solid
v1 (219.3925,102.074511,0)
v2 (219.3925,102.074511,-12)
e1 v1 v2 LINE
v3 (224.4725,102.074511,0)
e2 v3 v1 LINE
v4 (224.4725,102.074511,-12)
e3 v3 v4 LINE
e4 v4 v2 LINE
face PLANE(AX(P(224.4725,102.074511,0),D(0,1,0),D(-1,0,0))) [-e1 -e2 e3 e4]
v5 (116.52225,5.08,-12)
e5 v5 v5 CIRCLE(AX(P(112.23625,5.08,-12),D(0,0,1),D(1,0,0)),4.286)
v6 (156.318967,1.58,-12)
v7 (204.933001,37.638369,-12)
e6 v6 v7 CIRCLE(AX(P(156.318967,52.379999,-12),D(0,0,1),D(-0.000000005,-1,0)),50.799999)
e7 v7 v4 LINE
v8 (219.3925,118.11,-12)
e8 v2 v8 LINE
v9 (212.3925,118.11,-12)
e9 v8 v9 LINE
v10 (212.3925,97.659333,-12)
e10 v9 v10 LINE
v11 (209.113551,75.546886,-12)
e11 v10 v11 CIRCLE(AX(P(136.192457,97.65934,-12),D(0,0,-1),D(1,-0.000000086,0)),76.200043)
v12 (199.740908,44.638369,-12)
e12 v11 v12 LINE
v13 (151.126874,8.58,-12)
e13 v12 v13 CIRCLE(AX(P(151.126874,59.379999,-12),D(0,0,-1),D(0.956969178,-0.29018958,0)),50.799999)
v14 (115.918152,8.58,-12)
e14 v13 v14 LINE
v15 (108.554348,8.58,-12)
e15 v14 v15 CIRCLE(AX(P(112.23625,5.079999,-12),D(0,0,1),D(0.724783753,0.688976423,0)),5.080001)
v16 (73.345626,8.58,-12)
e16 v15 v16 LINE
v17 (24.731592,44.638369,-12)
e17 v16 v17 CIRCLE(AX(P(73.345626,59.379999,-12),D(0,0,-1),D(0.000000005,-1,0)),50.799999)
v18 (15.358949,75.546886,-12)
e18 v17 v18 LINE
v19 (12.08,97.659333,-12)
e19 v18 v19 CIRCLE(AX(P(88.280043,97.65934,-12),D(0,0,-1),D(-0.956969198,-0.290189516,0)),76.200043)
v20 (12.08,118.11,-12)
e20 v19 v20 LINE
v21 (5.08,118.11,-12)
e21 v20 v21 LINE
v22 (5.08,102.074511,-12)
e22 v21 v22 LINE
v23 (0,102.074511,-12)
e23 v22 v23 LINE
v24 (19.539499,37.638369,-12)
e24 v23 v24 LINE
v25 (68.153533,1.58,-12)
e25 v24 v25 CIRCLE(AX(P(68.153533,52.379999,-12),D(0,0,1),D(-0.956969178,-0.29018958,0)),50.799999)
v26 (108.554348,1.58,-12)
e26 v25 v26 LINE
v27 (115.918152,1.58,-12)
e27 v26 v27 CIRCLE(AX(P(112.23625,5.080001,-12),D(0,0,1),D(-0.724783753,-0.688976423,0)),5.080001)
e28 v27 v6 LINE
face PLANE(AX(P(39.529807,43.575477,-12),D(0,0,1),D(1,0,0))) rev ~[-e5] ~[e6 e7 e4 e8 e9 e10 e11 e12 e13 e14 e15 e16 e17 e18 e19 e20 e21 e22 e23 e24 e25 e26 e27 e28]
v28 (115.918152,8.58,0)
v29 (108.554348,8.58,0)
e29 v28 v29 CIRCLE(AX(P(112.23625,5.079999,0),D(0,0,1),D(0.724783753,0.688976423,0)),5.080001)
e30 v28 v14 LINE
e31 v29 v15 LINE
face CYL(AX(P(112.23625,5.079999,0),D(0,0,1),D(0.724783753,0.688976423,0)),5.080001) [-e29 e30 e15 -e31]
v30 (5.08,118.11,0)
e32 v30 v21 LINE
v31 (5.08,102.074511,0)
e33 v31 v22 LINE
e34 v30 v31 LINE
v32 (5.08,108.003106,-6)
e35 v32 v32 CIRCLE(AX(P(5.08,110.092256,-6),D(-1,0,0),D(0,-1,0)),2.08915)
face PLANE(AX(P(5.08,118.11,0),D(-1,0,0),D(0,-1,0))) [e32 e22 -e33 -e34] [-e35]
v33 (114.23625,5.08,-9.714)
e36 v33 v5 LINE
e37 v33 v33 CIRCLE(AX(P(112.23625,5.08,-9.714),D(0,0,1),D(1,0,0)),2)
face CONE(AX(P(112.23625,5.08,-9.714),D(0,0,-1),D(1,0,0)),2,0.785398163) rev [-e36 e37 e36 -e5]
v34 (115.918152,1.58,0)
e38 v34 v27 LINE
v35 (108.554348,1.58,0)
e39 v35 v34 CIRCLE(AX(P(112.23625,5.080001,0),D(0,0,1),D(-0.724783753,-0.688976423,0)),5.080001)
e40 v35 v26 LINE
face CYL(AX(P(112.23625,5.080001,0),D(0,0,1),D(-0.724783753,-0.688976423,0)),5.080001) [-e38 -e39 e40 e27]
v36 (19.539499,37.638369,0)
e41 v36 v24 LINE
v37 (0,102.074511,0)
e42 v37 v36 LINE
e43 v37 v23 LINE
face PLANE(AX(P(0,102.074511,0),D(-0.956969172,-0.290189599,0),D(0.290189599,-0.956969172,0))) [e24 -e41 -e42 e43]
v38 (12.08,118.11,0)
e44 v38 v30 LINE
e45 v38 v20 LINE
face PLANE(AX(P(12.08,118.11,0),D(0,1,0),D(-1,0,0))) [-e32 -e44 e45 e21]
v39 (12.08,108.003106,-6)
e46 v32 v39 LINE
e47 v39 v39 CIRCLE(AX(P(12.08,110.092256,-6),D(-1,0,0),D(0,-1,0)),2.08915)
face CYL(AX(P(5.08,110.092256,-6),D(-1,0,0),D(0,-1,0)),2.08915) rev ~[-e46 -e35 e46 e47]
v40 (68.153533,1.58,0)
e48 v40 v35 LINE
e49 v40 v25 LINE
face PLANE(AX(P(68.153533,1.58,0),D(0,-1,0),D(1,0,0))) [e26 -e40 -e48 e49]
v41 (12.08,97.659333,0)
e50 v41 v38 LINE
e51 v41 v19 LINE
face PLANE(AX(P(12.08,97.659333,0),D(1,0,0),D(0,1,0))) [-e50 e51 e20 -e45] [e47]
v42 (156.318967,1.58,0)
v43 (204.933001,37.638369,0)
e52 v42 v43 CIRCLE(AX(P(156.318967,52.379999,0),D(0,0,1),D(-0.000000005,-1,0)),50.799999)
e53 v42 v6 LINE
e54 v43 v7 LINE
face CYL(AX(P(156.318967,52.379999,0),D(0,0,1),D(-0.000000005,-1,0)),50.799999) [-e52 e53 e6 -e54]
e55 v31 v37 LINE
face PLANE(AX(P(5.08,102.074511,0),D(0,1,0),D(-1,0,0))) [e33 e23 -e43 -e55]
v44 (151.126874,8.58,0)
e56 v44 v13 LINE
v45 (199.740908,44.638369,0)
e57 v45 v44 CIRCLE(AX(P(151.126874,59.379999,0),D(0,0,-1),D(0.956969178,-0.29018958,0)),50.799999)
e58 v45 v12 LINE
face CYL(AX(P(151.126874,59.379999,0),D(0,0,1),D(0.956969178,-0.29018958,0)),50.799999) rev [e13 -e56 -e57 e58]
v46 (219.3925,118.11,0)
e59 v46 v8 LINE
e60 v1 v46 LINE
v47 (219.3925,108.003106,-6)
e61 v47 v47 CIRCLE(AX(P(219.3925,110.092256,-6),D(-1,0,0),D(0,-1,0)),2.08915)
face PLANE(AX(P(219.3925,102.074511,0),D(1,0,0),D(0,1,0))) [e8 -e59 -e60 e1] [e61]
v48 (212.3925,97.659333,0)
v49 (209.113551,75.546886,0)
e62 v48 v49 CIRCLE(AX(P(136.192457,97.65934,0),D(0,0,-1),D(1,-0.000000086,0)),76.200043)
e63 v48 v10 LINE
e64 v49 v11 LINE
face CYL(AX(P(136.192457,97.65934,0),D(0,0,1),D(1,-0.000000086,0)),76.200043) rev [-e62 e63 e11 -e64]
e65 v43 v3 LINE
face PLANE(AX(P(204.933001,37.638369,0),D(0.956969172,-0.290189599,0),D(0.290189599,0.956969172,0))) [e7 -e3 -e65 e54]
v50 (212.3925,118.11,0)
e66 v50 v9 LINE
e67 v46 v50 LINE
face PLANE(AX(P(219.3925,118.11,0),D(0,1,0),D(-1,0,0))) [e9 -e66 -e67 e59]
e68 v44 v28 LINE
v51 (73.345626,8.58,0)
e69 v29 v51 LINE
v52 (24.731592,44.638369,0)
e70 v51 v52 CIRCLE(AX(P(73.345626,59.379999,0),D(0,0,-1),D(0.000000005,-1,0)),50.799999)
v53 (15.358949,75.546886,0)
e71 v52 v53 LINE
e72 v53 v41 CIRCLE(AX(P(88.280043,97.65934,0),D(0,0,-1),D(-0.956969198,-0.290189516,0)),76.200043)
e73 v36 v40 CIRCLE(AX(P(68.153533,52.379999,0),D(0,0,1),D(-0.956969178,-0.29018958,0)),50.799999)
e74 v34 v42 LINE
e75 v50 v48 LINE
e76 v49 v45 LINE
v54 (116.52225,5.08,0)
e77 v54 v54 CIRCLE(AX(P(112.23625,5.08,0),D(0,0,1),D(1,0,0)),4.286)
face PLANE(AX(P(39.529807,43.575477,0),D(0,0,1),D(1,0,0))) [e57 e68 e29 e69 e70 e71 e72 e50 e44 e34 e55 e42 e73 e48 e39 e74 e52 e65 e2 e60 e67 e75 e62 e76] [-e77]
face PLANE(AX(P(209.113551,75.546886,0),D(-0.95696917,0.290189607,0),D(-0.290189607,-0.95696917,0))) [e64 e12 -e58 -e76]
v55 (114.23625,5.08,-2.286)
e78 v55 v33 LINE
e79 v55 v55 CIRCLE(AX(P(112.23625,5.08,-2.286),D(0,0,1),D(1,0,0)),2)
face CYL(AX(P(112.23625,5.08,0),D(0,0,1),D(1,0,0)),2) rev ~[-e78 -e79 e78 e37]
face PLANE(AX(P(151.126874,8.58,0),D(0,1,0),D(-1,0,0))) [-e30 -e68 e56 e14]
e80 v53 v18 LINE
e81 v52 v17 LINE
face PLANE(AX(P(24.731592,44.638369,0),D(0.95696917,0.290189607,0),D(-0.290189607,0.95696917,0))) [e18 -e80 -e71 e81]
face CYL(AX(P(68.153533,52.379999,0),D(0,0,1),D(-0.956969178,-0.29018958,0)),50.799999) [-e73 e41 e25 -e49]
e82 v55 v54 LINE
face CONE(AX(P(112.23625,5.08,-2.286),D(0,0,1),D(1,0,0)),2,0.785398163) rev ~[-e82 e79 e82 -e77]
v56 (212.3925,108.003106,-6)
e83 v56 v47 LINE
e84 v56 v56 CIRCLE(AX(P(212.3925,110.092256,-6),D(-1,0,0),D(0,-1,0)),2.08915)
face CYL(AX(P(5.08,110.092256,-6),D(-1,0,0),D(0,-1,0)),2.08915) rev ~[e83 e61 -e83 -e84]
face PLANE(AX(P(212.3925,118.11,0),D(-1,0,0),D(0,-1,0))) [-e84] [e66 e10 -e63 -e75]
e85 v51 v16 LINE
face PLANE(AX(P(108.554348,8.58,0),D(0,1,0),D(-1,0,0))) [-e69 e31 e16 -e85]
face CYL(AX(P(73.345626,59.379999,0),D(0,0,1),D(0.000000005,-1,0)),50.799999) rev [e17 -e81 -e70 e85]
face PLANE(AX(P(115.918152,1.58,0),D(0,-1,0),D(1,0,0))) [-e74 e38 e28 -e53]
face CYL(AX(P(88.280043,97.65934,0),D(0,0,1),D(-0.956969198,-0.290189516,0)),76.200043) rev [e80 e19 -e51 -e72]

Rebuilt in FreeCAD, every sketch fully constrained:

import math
import FreeCAD as App
import Part
import Sketcher
Q = App.Units.Quantity


def edges_at(feature, points):
    """Names of the edges that pass closest to the given points."""
    edges = feature.Shape.Edges
    near = lambda p: min(range(len(edges)), key=lambda i: edges[i].distToShape(Part.Vertex(*p))[0])
    return sorted({f"Edge{near(p) + 1}" for p in points})

doc = App.newDocument("Part")
body = doc.addObject("PartDesign::Body", "Body")

# Sketch on XY plane
sketch1 = body.newObject("Sketcher::SketchObject", "Sketch")
sketch1.AttachmentSupport = (doc.getObject("XY_Plane"), [""])
sketch1.MapMode = "FlatFace"
sketch1.addGeometry(Part.LineSegment(App.Vector(12.1, 118.1, 0), App.Vector(5.1, 118.1, 0)), False)
sketch1.addGeometry(Part.LineSegment(App.Vector(5.1, 118.1, 0), App.Vector(5.1, 102.1, 0)), False)
sketch1.addGeometry(Part.LineSegment(App.Vector(5.1, 102.1, 0), App.Vector(0, 102.1, 0)), False)
sketch1.addGeometry(Part.LineSegment(App.Vector(0, 102.1, 0), App.Vector(19.5, 37.6, 0)), False)
sketch1.addGeometry(Part.ArcOfCircle(Part.Circle(App.Vector(68.2, 52.4, 0), App.Vector(0, 0, 1), 50.8), math.radians(-163), math.radians(-90)), False)
sketch1.addGeometry(Part.LineSegment(App.Vector(68.2, 1.6, 0), App.Vector(108.6, 1.6, 0)), False)
sketch1.addGeometry(Part.ArcOfCircle(Part.Circle(App.Vector(112.2, 5.1, 0), App.Vector(0, 0, 1), 5.1), math.radians(-136), math.radians(-44)), False)
sketch1.addGeometry(Part.LineSegment(App.Vector(115.9, 1.6, 0), App.Vector(156.3, 1.6, 0)), False)
sketch1.addGeometry(Part.ArcOfCircle(Part.Circle(App.Vector(156.3, 52.4, 0), App.Vector(0, 0, 1), 50.8), math.radians(-90), math.radians(-17)), False)
sketch1.addGeometry(Part.LineSegment(App.Vector(204.9, 37.6, 0), App.Vector(224.5, 102.1, 0)), False)
sketch1.addGeometry(Part.LineSegment(App.Vector(224.5, 102.1, 0), App.Vector(219.4, 102.1, 0)), False)
sketch1.addGeometry(Part.LineSegment(App.Vector(219.4, 102.1, 0), App.Vector(219.4, 118.1, 0)), False)
sketch1.addGeometry(Part.LineSegment(App.Vector(219.4, 118.1, 0), App.Vector(212.4, 118.1, 0)), False)
sketch1.addGeometry(Part.LineSegment(App.Vector(212.4, 118.1, 0), App.Vector(212.4, 97.7, 0)), False)
sketch1.addGeometry(Part.ArcOfCircle(Part.Circle(App.Vector(136.2, 97.7, 0), App.Vector(0, 0, 1), 76.2), math.radians(-16.87), math.radians(0)), False)
sketch1.addGeometry(Part.LineSegment(App.Vector(209.1, 75.5, 0), App.Vector(199.7, 44.6, 0)), False)
sketch1.addGeometry(Part.ArcOfCircle(Part.Circle(App.Vector(151.1, 59.4, 0), App.Vector(0, 0, 1), 50.8), math.radians(-90), math.radians(-17)), False)
sketch1.addGeometry(Part.LineSegment(App.Vector(151.1, 8.6, 0), App.Vector(115.9, 8.6, 0)), False)
sketch1.addGeometry(Part.ArcOfCircle(Part.Circle(App.Vector(112.2, 5.1, 0), App.Vector(0, 0, 1), 5.1), math.radians(44), math.radians(136)), False)
sketch1.addGeometry(Part.LineSegment(App.Vector(108.6, 8.6, 0), App.Vector(73.3, 8.6, 0)), False)
sketch1.addGeometry(Part.ArcOfCircle(Part.Circle(App.Vector(73.3, 59.4, 0), App.Vector(0, 0, 1), 50.8), math.radians(-163), math.radians(-90)), False)
sketch1.addGeometry(Part.LineSegment(App.Vector(24.7, 44.6, 0), App.Vector(15.4, 75.5, 0)), False)
sketch1.addGeometry(Part.ArcOfCircle(Part.Circle(App.Vector(88.3, 97.7, 0), App.Vector(0, 0, 1), 76.2), math.radians(-180), math.radians(-163.13)), False)
sketch1.addGeometry(Part.LineSegment(App.Vector(12.1, 97.7, 0), App.Vector(12.1, 118.1, 0)), False)
sketch1.addGeometry(Part.Circle(App.Vector(112.2, 5.1, 0), App.Vector(0, 0, 1), 2), False)
sketch1.addConstraint(Sketcher.Constraint("Coincident", 0, 2, 1, 1))
sketch1.addConstraint(Sketcher.Constraint("Coincident", 1, 2, 2, 1))
sketch1.addConstraint(Sketcher.Constraint("Coincident", 2, 2, 3, 1))
sketch1.addConstraint(Sketcher.Constraint("Tangent", 3, 2, 4, 1))
sketch1.addConstraint(Sketcher.Constraint("Tangent", 4, 2, 5, 1))
sketch1.addConstraint(Sketcher.Constraint("Coincident", 5, 2, 6, 1))
sketch1.addConstraint(Sketcher.Constraint("Coincident", 6, 2, 7, 1))
sketch1.addConstraint(Sketcher.Constraint("Tangent", 7, 2, 8, 1))
sketch1.addConstraint(Sketcher.Constraint("Tangent", 8, 2, 9, 1))
sketch1.addConstraint(Sketcher.Constraint("Coincident", 9, 2, 10, 1))
sketch1.addConstraint(Sketcher.Constraint("Coincident", 10, 2, 11, 1))
sketch1.addConstraint(Sketcher.Constraint("Coincident", 11, 2, 12, 1))
sketch1.addConstraint(Sketcher.Constraint("Coincident", 12, 2, 13, 1))
sketch1.addConstraint(Sketcher.Constraint("Tangent", 13, 2, 14, 2))
sketch1.addConstraint(Sketcher.Constraint("Tangent", 14, 1, 15, 1))
sketch1.addConstraint(Sketcher.Constraint("Tangent", 15, 2, 16, 2))
sketch1.addConstraint(Sketcher.Constraint("Tangent", 16, 1, 17, 1))
sketch1.addConstraint(Sketcher.Constraint("Coincident", 17, 2, 18, 1))
sketch1.addConstraint(Sketcher.Constraint("Coincident", 18, 2, 19, 1))
sketch1.addConstraint(Sketcher.Constraint("Tangent", 19, 2, 20, 2))
sketch1.addConstraint(Sketcher.Constraint("Tangent", 20, 1, 21, 1))
sketch1.addConstraint(Sketcher.Constraint("Tangent", 21, 2, 22, 2))
sketch1.addConstraint(Sketcher.Constraint("Tangent", 22, 1, 23, 1))
sketch1.addConstraint(Sketcher.Constraint("Coincident", 23, 2, 0, 1))
sketch1.addConstraint(Sketcher.Constraint("Horizontal", 0))
sketch1.addConstraint(Sketcher.Constraint("Vertical", 1))
sketch1.addConstraint(Sketcher.Constraint("Horizontal", 2))
sketch1.addConstraint(Sketcher.Constraint("Horizontal", 5))
sketch1.addConstraint(Sketcher.Constraint("Horizontal", 7))
sketch1.addConstraint(Sketcher.Constraint("Horizontal", 10))
sketch1.addConstraint(Sketcher.Constraint("Vertical", 11))
sketch1.addConstraint(Sketcher.Constraint("Horizontal", 12))
sketch1.addConstraint(Sketcher.Constraint("Vertical", 13))
sketch1.addConstraint(Sketcher.Constraint("Horizontal", 17))
sketch1.addConstraint(Sketcher.Constraint("Horizontal", 19))
sketch1.addConstraint(Sketcher.Constraint("Vertical", 23))
sketch1.addConstraint(Sketcher.Constraint("Coincident", 18, 3, 6, 3))
sketch1.addConstraint(Sketcher.Constraint("Coincident", 24, 3, 6, 3))
sketch1.addConstraint(Sketcher.Constraint("Equal", 4, 8))
sketch1.addConstraint(Sketcher.Constraint("Equal", 8, 16))
sketch1.addConstraint(Sketcher.Constraint("Equal", 6, 18))
sketch1.addConstraint(Sketcher.Constraint("Equal", 16, 20))
sketch1.addConstraint(Sketcher.Constraint("Equal", 14, 22))
sketch1.addConstraint(Sketcher.Constraint("PointOnObject", 2, 2, -2))
sketch1.addConstraint(Sketcher.Constraint("Parallel", 9, 15))
sketch1.addConstraint(Sketcher.Constraint("Parallel", 3, 21))
sketch1.addConstraint(Sketcher.Constraint("Horizontal", 4, 3, 8, 3))
sketch1.addConstraint(Sketcher.Constraint("Horizontal", 16, 3, 20, 3))
sketch1.addConstraint(Sketcher.Constraint("Horizontal", 14, 3, 22, 3))
sketch1.addConstraint(Sketcher.Constraint("Horizontal", 3, 2, 8, 2))
sketch1.addConstraint(Sketcher.Constraint("Horizontal", 2, 2, 9, 2))
sketch1.addConstraint(Sketcher.Constraint("Horizontal", 0, 2, 11, 2))
sketch1.addConstraint(Sketcher.Constraint("Vertical", 6, 2, 17, 2))
sketch1.addConstraint(Sketcher.Constraint("Equal", 5, 7))
sketch1.addConstraint(Sketcher.Constraint("Equal", 2, 10))
sketch1.addConstraint(Sketcher.Constraint("Equal", 0, 12))
sketch1.addConstraint(Sketcher.Constraint("Radius", 4, Q("2 in")))
sketch1.addConstraint(Sketcher.Constraint("Radius", 6, Q("0.2 in")))
sketch1.addConstraint(Sketcher.Constraint("DistanceX", 2, 2, 2, 1, Q("0.2 in")))
sketch1.addConstraint(Sketcher.Constraint("DistanceY", -1, 1, 6, 3, Q("0.2 in")))
sketch1.addConstraint(Sketcher.Constraint("Diameter", 24, 4.0))
sketch1.addConstraint(Sketcher.Constraint("DistanceY", -1, 1, 0, 2, Q("4.65 in")))
sketch1.addConstraint(Sketcher.Constraint("DistanceX", 0, 2, 6, 3, Q("4.21875 in")))
sketch1.addConstraint(Sketcher.Constraint("DistanceX", 0, 2, 0, 1, 7.0))
sketch1.addConstraint(Sketcher.Constraint("Radius", 14, 76.200043))
sketch1.addConstraint(Sketcher.Constraint("DistanceX", 17, 2, 17, 1, 35.208722))
sketch1.addConstraint(Sketcher.Constraint("DistanceY", 1, 2, 1, 1, 16.035489))
sketch1.addConstraint(Sketcher.Constraint("DistanceY", -1, 1, 4, 3, 52.379999))
sketch1.addConstraint(Sketcher.Constraint("DistanceX", -1, 1, 3, 2, 19.539499))
pad1 = body.newObject("PartDesign::Pad", "Pad")
pad1.Profile = sketch1
pad1.Length = 12
pad1.Reversed = True
doc.recompute()

chamfer = body.newObject("PartDesign::Chamfer", "Chamfer")
chamfer.Base = (pad1, edges_at(pad1, [(110.236, 5.08, 0)]))
chamfer.Size = Q("0.09 in")
doc.recompute()

chamfer2 = body.newObject("PartDesign::Chamfer", "Chamfer001")
chamfer2.Base = (chamfer, edges_at(chamfer, [(110.236, 5.08, -12)]))
chamfer2.Size = Q("0.09 in")

# Sketch on YZ plane
sketch2 = body.newObject("Sketcher::SketchObject", "Sketch001")
sketch2.AttachmentSupport = (doc.getObject("YZ_Plane"), [""])
sketch2.MapMode = "FlatFace"
sketch2.AttachmentOffset = App.Placement(App.Vector(0, 0, 0.2 * 25.4), App.Rotation())
sketch2.addGeometry(Part.Circle(App.Vector(110.1, -6, 0), App.Vector(0, 0, 1), 2.1), False)
sketch2.addConstraint(Sketcher.Constraint("Diameter", 0, Q("0.1645 in")))
sketch2.addConstraint(Sketcher.Constraint("DistanceY", 0, 3, -1, 1, 6.0))
sketch2.addConstraint(Sketcher.Constraint("DistanceX", -1, 1, 0, 3, 110.092256))
pocket1 = body.newObject("PartDesign::Pocket", "Pocket")
pocket1.Profile = sketch2
pocket1.Type = "ThroughAll"
pocket1.Reversed = True

doc.recompute()
